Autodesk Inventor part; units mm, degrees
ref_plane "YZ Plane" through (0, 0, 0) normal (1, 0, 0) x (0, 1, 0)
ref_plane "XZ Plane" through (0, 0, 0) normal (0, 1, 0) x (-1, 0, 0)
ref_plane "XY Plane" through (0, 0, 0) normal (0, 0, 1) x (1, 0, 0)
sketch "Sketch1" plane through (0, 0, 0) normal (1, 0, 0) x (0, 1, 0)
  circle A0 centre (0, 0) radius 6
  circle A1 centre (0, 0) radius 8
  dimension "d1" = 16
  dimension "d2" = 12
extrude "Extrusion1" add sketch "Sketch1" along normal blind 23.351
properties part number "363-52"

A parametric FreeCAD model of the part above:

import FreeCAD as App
import Part
import Sketcher
Q = App.Units.Quantity

doc = App.newDocument("Part")
body = doc.addObject("PartDesign::Body", "Body")

# Sketch on YZ plane
sketch1 = doc.addObject("Sketcher::SketchObject", "Sketch")
body.addObject(sketch1)
sketch1.AttachmentSupport = (doc.YZ_Plane, [""])
sketch1.MapMode = "FlatFace"
sketch1.addGeometry([
    Part.Circle(App.Vector(0, 0, 0), App.Vector(0, 0, 1), 8),
    Part.Circle(App.Vector(0, 0, 0), App.Vector(0, 0, 1), 6),
], False)
sketch1.addConstraint([
    Sketcher.Constraint("Coincident", 0, 3, -1, 1),
    Sketcher.Constraint("Coincident", 1, 3, -1, 1),
    Sketcher.Constraint("Diameter", 0, Q("16 mm")),
    Sketcher.Constraint("Diameter", 1, Q("12 mm")),
])
pad1 = doc.addObject("PartDesign::Pad", "Pad")
body.addObject(pad1)
pad1.Profile = sketch1
pad1.Length = 23.351

doc.recompute()
